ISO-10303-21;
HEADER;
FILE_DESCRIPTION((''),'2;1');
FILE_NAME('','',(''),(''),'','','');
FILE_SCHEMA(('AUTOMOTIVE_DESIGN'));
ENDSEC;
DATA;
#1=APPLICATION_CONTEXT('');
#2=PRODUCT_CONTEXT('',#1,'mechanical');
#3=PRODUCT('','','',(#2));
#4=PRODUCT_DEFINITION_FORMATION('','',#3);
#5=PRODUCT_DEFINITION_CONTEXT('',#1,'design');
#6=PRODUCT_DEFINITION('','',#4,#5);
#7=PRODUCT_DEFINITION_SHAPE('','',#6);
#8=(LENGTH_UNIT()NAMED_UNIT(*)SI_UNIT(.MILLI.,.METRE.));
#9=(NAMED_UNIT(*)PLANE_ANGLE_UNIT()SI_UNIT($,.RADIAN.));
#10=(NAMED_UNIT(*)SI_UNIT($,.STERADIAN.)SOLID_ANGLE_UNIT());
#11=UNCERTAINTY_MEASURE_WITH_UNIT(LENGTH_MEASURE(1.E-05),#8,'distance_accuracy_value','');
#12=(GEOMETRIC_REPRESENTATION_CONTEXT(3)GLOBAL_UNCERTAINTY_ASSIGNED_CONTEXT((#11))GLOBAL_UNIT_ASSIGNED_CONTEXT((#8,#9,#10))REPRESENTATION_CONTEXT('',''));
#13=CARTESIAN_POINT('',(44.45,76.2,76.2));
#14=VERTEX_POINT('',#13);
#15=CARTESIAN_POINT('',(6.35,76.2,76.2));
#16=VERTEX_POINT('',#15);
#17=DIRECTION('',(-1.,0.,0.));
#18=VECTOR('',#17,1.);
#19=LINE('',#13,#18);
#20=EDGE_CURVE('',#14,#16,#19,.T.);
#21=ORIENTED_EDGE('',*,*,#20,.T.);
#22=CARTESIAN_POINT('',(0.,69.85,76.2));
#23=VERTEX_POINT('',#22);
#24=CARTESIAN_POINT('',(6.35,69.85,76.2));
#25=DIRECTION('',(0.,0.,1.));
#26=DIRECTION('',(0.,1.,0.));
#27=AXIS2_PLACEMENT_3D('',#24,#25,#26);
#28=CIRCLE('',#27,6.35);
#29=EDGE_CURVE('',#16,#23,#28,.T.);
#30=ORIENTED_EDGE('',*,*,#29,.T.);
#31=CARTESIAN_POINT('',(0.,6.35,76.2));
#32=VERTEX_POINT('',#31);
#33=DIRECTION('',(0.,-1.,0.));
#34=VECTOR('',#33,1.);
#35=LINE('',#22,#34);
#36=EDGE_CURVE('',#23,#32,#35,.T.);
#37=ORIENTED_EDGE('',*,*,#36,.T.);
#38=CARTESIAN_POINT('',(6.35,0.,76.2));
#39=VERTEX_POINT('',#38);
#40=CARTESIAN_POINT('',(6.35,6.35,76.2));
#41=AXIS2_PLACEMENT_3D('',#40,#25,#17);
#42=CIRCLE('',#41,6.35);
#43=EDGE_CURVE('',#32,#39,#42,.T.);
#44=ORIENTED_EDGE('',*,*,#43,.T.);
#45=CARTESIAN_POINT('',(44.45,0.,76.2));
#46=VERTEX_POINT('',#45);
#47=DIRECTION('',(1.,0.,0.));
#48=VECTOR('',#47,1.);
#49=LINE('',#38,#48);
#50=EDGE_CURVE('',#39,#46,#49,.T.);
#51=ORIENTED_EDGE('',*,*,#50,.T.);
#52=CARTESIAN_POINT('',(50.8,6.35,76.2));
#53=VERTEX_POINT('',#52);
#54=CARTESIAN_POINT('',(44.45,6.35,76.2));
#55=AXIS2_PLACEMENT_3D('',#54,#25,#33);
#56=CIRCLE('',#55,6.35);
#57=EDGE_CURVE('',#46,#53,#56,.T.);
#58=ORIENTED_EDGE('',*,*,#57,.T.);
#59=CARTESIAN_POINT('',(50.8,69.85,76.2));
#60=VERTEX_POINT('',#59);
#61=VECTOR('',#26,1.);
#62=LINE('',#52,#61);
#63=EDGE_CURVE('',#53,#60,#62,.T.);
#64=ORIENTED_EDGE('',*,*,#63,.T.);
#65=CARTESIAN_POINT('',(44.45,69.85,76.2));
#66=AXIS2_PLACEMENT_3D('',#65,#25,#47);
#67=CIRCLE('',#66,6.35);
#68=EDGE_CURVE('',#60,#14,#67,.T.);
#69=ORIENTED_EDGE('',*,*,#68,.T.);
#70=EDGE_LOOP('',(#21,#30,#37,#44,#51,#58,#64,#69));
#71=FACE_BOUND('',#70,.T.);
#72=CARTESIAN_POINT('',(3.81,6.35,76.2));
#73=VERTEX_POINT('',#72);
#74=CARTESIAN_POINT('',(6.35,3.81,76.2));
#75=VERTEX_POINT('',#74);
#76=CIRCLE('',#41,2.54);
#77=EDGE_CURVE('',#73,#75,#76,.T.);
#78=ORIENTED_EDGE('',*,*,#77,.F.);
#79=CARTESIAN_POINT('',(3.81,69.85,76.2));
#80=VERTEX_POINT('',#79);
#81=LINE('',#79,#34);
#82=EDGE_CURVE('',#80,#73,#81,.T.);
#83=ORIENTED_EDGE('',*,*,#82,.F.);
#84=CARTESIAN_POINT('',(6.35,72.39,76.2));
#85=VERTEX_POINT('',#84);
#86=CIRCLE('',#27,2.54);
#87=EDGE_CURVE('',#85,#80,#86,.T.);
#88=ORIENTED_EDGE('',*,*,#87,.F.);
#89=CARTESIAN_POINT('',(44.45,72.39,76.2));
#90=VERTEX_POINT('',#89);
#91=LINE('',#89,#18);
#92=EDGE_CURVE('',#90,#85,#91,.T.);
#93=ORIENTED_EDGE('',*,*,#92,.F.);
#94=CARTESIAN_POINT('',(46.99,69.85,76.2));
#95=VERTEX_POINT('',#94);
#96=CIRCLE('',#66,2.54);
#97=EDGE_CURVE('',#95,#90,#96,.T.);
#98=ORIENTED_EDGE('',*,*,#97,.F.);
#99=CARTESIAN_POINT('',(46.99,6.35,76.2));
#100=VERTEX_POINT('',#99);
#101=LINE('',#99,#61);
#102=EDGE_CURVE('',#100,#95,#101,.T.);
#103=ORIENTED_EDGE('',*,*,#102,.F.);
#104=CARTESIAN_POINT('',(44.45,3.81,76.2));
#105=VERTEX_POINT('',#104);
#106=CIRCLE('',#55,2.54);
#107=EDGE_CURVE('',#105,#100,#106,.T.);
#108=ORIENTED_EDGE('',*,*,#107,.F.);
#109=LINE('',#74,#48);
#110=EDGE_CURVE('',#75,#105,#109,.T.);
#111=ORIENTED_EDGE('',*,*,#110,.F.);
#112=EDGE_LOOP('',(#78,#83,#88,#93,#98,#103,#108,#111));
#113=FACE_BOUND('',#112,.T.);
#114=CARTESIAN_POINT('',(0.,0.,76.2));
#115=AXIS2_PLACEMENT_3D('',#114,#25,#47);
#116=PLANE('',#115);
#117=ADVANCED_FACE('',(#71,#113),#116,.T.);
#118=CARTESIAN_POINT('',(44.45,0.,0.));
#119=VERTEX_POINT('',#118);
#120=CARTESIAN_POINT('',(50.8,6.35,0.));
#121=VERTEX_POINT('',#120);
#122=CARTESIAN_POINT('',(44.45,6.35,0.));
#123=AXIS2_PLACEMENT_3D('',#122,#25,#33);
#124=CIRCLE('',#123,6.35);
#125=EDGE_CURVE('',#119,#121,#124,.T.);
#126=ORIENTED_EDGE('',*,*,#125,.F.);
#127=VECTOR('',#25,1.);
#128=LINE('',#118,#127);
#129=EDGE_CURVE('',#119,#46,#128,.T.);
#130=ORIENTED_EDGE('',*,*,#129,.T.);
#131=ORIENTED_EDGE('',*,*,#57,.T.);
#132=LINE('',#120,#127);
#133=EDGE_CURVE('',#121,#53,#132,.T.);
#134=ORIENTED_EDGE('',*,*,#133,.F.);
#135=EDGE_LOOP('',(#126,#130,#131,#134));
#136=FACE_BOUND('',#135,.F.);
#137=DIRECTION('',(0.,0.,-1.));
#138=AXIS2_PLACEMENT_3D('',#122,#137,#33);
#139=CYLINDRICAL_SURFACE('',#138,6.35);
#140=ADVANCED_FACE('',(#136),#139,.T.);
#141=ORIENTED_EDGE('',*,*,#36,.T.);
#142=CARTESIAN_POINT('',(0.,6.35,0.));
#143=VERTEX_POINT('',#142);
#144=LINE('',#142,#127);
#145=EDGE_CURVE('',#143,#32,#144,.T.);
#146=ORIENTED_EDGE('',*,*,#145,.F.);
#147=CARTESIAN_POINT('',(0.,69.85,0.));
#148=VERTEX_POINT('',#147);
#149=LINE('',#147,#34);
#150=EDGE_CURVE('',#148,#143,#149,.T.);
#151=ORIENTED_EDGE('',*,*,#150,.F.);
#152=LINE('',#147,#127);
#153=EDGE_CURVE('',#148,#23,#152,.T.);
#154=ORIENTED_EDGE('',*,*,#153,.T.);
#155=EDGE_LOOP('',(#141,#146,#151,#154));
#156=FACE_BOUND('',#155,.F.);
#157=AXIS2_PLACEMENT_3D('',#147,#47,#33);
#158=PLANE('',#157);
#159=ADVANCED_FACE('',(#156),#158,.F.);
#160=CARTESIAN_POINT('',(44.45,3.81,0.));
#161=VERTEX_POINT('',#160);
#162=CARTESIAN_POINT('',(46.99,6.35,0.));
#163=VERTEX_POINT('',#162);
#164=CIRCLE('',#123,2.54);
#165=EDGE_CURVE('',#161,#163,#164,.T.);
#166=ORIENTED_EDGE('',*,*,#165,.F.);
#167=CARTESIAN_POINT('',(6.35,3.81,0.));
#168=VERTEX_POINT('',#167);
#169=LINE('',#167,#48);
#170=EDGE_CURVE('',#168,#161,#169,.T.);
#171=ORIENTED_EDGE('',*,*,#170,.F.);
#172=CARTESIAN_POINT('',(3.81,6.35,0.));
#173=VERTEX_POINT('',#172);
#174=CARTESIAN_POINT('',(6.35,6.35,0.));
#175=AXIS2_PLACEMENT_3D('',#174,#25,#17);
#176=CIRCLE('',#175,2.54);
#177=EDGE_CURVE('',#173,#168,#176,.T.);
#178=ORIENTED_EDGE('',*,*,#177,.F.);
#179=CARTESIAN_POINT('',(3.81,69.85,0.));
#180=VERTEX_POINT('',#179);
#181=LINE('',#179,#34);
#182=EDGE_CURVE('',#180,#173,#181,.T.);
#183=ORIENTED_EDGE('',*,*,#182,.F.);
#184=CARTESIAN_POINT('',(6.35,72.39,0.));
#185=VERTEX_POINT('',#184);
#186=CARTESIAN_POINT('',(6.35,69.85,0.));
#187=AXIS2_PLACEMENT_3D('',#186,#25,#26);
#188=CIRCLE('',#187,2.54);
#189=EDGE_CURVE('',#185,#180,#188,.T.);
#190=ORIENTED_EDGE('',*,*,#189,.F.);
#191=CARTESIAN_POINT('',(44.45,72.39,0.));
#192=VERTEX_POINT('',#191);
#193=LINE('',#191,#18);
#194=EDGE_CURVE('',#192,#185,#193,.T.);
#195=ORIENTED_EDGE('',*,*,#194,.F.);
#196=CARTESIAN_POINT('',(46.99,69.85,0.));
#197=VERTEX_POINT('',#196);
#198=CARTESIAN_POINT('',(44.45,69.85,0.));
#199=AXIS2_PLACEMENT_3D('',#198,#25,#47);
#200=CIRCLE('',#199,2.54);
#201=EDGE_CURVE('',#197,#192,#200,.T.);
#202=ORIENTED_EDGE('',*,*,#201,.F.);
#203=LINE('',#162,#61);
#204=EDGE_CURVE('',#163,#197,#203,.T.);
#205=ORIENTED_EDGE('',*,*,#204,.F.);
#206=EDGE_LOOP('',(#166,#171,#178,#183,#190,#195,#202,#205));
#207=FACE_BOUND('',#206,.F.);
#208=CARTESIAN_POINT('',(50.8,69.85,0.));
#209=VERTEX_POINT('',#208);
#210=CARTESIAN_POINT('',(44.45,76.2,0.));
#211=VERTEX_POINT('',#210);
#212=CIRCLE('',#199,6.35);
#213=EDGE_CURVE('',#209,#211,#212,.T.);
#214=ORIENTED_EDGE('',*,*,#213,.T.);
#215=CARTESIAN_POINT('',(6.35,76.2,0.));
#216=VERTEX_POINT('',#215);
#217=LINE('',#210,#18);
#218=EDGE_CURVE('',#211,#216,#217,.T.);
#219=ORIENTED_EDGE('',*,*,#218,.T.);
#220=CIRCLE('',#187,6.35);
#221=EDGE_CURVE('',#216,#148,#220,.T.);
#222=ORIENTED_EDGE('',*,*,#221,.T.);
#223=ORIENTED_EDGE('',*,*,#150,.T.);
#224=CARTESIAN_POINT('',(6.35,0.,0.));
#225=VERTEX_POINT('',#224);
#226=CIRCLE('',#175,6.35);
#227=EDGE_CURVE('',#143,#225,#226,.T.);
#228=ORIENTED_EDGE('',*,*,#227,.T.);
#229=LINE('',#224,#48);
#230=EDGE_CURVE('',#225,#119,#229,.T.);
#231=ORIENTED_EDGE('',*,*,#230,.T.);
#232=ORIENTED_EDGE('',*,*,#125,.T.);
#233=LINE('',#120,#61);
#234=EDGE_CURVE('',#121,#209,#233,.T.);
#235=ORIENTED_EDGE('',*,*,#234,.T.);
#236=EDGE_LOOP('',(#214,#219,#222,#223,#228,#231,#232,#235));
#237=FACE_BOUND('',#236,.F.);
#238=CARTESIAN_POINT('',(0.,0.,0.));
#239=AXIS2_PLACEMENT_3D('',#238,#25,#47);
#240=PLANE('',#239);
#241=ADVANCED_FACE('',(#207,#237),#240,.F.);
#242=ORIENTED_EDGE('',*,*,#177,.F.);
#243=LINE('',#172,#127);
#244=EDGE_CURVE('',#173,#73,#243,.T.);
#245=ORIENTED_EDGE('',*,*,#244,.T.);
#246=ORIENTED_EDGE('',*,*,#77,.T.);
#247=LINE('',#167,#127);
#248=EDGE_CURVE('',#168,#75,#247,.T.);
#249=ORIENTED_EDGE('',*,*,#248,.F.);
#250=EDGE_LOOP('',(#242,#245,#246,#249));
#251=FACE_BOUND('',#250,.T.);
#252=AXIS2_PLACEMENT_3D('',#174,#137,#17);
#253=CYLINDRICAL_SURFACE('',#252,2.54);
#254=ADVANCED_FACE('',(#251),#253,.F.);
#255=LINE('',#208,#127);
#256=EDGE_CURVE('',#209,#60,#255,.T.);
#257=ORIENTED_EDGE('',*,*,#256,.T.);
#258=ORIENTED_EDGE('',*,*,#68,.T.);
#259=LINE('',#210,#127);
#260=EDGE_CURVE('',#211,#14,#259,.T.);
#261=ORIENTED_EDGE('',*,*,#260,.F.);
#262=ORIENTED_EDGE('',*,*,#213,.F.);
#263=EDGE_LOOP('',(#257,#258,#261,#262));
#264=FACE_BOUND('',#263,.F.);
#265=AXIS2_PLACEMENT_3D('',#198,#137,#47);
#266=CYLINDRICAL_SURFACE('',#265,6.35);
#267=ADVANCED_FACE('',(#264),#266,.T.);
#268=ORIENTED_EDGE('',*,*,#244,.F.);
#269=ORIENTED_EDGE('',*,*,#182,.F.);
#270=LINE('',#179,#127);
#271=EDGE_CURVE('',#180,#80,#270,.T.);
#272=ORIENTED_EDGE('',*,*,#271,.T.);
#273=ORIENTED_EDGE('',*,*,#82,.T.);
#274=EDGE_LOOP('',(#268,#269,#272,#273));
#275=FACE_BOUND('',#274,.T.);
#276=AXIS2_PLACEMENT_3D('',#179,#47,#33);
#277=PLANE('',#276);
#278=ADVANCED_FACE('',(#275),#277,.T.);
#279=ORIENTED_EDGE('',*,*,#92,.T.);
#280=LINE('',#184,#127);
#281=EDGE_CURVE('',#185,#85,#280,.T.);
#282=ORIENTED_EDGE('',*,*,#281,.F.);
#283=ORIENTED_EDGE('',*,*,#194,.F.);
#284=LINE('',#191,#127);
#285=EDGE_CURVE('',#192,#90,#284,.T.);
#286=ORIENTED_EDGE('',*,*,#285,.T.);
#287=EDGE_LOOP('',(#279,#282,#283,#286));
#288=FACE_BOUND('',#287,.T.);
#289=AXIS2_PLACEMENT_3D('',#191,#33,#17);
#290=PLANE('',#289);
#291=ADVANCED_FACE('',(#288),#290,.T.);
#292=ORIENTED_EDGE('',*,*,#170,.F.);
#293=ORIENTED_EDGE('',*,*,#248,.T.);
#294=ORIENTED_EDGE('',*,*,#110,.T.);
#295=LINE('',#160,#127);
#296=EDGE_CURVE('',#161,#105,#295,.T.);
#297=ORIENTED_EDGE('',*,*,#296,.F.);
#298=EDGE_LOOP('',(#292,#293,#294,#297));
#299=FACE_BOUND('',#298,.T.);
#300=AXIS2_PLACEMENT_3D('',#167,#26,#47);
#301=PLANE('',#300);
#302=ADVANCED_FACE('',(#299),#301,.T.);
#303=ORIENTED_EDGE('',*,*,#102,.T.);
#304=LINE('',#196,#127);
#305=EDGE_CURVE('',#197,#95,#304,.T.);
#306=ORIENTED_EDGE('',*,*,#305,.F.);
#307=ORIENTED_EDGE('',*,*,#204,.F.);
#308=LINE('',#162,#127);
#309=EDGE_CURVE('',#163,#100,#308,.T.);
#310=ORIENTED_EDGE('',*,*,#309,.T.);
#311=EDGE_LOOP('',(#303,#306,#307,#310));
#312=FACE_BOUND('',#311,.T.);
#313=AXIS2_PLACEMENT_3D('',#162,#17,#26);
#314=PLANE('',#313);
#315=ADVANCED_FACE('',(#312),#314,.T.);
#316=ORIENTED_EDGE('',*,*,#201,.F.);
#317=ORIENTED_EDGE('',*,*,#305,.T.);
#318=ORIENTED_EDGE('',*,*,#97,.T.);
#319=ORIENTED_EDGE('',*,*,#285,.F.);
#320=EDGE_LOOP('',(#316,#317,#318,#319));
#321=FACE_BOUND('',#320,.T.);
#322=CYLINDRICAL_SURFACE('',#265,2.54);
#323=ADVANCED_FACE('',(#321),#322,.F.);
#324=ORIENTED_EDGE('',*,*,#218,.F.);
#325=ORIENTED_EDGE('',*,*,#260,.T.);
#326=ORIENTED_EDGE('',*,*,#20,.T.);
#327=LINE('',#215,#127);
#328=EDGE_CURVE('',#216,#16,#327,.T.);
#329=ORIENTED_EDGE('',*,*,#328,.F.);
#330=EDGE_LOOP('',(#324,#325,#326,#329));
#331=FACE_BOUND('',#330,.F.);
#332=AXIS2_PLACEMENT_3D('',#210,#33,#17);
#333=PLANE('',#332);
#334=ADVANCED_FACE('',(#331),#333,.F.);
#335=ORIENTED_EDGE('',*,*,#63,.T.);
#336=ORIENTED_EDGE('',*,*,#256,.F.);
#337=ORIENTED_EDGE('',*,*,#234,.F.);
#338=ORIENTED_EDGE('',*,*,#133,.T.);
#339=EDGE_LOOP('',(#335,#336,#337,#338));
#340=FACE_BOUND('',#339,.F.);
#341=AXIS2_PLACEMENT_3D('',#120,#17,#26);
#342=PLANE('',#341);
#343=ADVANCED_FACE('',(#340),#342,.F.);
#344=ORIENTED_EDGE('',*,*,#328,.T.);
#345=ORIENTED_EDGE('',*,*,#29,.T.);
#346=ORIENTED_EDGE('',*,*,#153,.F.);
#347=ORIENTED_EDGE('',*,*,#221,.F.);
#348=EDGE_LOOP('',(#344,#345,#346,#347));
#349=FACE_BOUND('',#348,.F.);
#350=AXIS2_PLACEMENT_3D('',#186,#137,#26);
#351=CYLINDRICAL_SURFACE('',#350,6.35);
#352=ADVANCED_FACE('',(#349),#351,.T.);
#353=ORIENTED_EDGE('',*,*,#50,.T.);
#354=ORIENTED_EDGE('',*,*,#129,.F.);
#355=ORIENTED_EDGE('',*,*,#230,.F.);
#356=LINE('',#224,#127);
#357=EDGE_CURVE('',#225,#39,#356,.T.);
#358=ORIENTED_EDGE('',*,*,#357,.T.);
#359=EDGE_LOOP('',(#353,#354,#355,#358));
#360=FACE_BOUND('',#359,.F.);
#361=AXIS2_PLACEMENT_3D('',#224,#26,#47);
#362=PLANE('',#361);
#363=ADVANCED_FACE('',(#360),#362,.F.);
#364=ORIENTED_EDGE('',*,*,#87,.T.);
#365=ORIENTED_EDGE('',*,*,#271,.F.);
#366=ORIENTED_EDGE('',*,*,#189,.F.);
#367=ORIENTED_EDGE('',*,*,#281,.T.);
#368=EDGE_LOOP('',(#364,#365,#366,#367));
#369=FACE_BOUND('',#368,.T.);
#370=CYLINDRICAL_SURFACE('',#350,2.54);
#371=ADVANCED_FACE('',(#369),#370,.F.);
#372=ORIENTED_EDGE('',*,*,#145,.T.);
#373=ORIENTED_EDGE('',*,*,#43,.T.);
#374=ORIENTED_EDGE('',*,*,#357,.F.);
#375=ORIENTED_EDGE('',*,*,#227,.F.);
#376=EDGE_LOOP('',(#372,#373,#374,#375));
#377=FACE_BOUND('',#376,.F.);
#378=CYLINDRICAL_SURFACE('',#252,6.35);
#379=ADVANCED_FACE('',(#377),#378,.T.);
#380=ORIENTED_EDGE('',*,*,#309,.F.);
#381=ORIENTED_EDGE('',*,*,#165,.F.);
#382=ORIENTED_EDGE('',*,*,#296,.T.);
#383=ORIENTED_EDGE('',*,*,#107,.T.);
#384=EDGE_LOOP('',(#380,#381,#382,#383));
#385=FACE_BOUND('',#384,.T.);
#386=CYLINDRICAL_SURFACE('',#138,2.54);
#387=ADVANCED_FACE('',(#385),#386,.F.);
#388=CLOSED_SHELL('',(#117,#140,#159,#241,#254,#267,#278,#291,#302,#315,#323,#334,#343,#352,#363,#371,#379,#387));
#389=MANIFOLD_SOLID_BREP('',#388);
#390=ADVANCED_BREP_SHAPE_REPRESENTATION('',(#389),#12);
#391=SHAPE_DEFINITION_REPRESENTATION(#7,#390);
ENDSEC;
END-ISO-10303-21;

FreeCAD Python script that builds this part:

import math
import FreeCAD as App
import Part
import Sketcher
Q = App.Units.Quantity

doc = App.newDocument("Part")
body = doc.addObject("PartDesign::Body", "Body")

# Sketch on XY plane
sketch1 = body.newObject("Sketcher::SketchObject", "Sketch")
sketch1.AttachmentSupport = (doc.getObject("XY_Plane"), [""])
sketch1.MapMode = "FlatFace"
sketch1.addGeometry([
    Part.ArcOfCircle(Part.Circle(App.Vector(6.35, 6.35, 0), App.Vector(0, 0, 1), 6.35), math.radians(180), math.radians(270)),  # 0
    Part.LineSegment(App.Vector(6.35, 0, 0), App.Vector(44.45, 0, 0)),  # 1
    Part.ArcOfCircle(Part.Circle(App.Vector(44.45, 6.35, 0), App.Vector(0, 0, 1), 6.35), math.radians(-90), math.radians(0)),  # 2
    Part.LineSegment(App.Vector(50.8, 6.35, 0), App.Vector(50.8, 69.85, 0)),  # 3
    Part.ArcOfCircle(Part.Circle(App.Vector(44.45, 69.85, 0), App.Vector(0, 0, 1), 6.35), math.radians(0), math.radians(90)),  # 4
    Part.LineSegment(App.Vector(44.45, 76.2, 0), App.Vector(6.35, 76.2, 0)),  # 5
    Part.ArcOfCircle(Part.Circle(App.Vector(6.35, 69.85, 0), App.Vector(0, 0, 1), 6.35), math.radians(90), math.radians(180)),  # 6
    Part.LineSegment(App.Vector(0, 69.85, 0), App.Vector(0, 6.35, 0)),  # 7
    Part.LineSegment(App.Vector(3.81, 6.35, 0), App.Vector(3.81, 69.85, 0)),  # 8
    Part.ArcOfCircle(Part.Circle(App.Vector(6.35, 69.85, 0), App.Vector(0, 0, 1), 2.54), math.radians(90), math.radians(180)),  # 9
    Part.LineSegment(App.Vector(6.35, 72.39, 0), App.Vector(44.45, 72.39, 0)),  # 10
    Part.ArcOfCircle(Part.Circle(App.Vector(44.45, 69.85, 0), App.Vector(0, 0, 1), 2.54), math.radians(0), math.radians(90)),  # 11
    Part.LineSegment(App.Vector(46.99, 69.85, 0), App.Vector(46.99, 6.35, 0)),  # 12
    Part.ArcOfCircle(Part.Circle(App.Vector(44.45, 6.35, 0), App.Vector(0, 0, 1), 2.54), math.radians(-90), math.radians(0)),  # 13
    Part.LineSegment(App.Vector(44.45, 3.81, 0), App.Vector(6.35, 3.81, 0)),  # 14
    Part.ArcOfCircle(Part.Circle(App.Vector(6.35, 6.35, 0), App.Vector(0, 0, 1), 2.54), math.radians(180), math.radians(270)),  # 15
], False)
sketch1.addConstraint([
    Sketcher.Constraint("Tangent", 0, 2, 1, 1),
    Sketcher.Constraint("Tangent", 1, 2, 2, 1),
    Sketcher.Constraint("Tangent", 2, 2, 3, 1),
    Sketcher.Constraint("Tangent", 3, 2, 4, 1),
    Sketcher.Constraint("Tangent", 4, 2, 5, 1),
    Sketcher.Constraint("Tangent", 5, 2, 6, 1),
    Sketcher.Constraint("Tangent", 6, 2, 7, 1),
    Sketcher.Constraint("Tangent", 7, 2, 0, 1),
    Sketcher.Constraint("Tangent", 8, 2, 9, 2),
    Sketcher.Constraint("Tangent", 9, 1, 10, 1),
    Sketcher.Constraint("Tangent", 10, 2, 11, 2),
    Sketcher.Constraint("Tangent", 11, 1, 12, 1),
    Sketcher.Constraint("Tangent", 12, 2, 13, 2),
    Sketcher.Constraint("Tangent", 13, 1, 14, 1),
    Sketcher.Constraint("Tangent", 14, 2, 15, 2),
    Sketcher.Constraint("Tangent", 15, 1, 8, 1),
    Sketcher.Constraint("Horizontal", 1),
    Sketcher.Constraint("Vertical", 3),
    Sketcher.Constraint("Horizontal", 5),
    Sketcher.Constraint("Vertical", 7),
    Sketcher.Constraint("Vertical", 8),
    Sketcher.Constraint("Horizontal", 10),
    Sketcher.Constraint("Vertical", 12),
    Sketcher.Constraint("Horizontal", 14),
    Sketcher.Constraint("Coincident", 9, 3, 6, 3),
    Sketcher.Constraint("Coincident", 11, 3, 4, 3),
    Sketcher.Constraint("Coincident", 13, 3, 2, 3),
    Sketcher.Constraint("Equal", 0, 2),
    Sketcher.Constraint("Equal", 2, 4),
    Sketcher.Constraint("Equal", 4, 6),
    Sketcher.Constraint("Equal", 13, 15),
    Sketcher.Constraint("PointOnObject", 0, 2, -1),
    Sketcher.Constraint("PointOnObject", 6, 2, -2),
    Sketcher.Constraint("Radius", 0, Q("0.25 in")),
    Sketcher.Constraint("DistanceX", -1, 1, 2, 2, Q("2 in")),
    Sketcher.Constraint("DistanceY", -1, 1, 4, 2, Q("3 in")),
    Sketcher.Constraint("Radius", 9, Q("0.1 in")),
])
pad1 = body.newObject("PartDesign::Pad", "Pad")
pad1.Profile = sketch1
pad1.Length = Q("3 in")

doc.recompute()
